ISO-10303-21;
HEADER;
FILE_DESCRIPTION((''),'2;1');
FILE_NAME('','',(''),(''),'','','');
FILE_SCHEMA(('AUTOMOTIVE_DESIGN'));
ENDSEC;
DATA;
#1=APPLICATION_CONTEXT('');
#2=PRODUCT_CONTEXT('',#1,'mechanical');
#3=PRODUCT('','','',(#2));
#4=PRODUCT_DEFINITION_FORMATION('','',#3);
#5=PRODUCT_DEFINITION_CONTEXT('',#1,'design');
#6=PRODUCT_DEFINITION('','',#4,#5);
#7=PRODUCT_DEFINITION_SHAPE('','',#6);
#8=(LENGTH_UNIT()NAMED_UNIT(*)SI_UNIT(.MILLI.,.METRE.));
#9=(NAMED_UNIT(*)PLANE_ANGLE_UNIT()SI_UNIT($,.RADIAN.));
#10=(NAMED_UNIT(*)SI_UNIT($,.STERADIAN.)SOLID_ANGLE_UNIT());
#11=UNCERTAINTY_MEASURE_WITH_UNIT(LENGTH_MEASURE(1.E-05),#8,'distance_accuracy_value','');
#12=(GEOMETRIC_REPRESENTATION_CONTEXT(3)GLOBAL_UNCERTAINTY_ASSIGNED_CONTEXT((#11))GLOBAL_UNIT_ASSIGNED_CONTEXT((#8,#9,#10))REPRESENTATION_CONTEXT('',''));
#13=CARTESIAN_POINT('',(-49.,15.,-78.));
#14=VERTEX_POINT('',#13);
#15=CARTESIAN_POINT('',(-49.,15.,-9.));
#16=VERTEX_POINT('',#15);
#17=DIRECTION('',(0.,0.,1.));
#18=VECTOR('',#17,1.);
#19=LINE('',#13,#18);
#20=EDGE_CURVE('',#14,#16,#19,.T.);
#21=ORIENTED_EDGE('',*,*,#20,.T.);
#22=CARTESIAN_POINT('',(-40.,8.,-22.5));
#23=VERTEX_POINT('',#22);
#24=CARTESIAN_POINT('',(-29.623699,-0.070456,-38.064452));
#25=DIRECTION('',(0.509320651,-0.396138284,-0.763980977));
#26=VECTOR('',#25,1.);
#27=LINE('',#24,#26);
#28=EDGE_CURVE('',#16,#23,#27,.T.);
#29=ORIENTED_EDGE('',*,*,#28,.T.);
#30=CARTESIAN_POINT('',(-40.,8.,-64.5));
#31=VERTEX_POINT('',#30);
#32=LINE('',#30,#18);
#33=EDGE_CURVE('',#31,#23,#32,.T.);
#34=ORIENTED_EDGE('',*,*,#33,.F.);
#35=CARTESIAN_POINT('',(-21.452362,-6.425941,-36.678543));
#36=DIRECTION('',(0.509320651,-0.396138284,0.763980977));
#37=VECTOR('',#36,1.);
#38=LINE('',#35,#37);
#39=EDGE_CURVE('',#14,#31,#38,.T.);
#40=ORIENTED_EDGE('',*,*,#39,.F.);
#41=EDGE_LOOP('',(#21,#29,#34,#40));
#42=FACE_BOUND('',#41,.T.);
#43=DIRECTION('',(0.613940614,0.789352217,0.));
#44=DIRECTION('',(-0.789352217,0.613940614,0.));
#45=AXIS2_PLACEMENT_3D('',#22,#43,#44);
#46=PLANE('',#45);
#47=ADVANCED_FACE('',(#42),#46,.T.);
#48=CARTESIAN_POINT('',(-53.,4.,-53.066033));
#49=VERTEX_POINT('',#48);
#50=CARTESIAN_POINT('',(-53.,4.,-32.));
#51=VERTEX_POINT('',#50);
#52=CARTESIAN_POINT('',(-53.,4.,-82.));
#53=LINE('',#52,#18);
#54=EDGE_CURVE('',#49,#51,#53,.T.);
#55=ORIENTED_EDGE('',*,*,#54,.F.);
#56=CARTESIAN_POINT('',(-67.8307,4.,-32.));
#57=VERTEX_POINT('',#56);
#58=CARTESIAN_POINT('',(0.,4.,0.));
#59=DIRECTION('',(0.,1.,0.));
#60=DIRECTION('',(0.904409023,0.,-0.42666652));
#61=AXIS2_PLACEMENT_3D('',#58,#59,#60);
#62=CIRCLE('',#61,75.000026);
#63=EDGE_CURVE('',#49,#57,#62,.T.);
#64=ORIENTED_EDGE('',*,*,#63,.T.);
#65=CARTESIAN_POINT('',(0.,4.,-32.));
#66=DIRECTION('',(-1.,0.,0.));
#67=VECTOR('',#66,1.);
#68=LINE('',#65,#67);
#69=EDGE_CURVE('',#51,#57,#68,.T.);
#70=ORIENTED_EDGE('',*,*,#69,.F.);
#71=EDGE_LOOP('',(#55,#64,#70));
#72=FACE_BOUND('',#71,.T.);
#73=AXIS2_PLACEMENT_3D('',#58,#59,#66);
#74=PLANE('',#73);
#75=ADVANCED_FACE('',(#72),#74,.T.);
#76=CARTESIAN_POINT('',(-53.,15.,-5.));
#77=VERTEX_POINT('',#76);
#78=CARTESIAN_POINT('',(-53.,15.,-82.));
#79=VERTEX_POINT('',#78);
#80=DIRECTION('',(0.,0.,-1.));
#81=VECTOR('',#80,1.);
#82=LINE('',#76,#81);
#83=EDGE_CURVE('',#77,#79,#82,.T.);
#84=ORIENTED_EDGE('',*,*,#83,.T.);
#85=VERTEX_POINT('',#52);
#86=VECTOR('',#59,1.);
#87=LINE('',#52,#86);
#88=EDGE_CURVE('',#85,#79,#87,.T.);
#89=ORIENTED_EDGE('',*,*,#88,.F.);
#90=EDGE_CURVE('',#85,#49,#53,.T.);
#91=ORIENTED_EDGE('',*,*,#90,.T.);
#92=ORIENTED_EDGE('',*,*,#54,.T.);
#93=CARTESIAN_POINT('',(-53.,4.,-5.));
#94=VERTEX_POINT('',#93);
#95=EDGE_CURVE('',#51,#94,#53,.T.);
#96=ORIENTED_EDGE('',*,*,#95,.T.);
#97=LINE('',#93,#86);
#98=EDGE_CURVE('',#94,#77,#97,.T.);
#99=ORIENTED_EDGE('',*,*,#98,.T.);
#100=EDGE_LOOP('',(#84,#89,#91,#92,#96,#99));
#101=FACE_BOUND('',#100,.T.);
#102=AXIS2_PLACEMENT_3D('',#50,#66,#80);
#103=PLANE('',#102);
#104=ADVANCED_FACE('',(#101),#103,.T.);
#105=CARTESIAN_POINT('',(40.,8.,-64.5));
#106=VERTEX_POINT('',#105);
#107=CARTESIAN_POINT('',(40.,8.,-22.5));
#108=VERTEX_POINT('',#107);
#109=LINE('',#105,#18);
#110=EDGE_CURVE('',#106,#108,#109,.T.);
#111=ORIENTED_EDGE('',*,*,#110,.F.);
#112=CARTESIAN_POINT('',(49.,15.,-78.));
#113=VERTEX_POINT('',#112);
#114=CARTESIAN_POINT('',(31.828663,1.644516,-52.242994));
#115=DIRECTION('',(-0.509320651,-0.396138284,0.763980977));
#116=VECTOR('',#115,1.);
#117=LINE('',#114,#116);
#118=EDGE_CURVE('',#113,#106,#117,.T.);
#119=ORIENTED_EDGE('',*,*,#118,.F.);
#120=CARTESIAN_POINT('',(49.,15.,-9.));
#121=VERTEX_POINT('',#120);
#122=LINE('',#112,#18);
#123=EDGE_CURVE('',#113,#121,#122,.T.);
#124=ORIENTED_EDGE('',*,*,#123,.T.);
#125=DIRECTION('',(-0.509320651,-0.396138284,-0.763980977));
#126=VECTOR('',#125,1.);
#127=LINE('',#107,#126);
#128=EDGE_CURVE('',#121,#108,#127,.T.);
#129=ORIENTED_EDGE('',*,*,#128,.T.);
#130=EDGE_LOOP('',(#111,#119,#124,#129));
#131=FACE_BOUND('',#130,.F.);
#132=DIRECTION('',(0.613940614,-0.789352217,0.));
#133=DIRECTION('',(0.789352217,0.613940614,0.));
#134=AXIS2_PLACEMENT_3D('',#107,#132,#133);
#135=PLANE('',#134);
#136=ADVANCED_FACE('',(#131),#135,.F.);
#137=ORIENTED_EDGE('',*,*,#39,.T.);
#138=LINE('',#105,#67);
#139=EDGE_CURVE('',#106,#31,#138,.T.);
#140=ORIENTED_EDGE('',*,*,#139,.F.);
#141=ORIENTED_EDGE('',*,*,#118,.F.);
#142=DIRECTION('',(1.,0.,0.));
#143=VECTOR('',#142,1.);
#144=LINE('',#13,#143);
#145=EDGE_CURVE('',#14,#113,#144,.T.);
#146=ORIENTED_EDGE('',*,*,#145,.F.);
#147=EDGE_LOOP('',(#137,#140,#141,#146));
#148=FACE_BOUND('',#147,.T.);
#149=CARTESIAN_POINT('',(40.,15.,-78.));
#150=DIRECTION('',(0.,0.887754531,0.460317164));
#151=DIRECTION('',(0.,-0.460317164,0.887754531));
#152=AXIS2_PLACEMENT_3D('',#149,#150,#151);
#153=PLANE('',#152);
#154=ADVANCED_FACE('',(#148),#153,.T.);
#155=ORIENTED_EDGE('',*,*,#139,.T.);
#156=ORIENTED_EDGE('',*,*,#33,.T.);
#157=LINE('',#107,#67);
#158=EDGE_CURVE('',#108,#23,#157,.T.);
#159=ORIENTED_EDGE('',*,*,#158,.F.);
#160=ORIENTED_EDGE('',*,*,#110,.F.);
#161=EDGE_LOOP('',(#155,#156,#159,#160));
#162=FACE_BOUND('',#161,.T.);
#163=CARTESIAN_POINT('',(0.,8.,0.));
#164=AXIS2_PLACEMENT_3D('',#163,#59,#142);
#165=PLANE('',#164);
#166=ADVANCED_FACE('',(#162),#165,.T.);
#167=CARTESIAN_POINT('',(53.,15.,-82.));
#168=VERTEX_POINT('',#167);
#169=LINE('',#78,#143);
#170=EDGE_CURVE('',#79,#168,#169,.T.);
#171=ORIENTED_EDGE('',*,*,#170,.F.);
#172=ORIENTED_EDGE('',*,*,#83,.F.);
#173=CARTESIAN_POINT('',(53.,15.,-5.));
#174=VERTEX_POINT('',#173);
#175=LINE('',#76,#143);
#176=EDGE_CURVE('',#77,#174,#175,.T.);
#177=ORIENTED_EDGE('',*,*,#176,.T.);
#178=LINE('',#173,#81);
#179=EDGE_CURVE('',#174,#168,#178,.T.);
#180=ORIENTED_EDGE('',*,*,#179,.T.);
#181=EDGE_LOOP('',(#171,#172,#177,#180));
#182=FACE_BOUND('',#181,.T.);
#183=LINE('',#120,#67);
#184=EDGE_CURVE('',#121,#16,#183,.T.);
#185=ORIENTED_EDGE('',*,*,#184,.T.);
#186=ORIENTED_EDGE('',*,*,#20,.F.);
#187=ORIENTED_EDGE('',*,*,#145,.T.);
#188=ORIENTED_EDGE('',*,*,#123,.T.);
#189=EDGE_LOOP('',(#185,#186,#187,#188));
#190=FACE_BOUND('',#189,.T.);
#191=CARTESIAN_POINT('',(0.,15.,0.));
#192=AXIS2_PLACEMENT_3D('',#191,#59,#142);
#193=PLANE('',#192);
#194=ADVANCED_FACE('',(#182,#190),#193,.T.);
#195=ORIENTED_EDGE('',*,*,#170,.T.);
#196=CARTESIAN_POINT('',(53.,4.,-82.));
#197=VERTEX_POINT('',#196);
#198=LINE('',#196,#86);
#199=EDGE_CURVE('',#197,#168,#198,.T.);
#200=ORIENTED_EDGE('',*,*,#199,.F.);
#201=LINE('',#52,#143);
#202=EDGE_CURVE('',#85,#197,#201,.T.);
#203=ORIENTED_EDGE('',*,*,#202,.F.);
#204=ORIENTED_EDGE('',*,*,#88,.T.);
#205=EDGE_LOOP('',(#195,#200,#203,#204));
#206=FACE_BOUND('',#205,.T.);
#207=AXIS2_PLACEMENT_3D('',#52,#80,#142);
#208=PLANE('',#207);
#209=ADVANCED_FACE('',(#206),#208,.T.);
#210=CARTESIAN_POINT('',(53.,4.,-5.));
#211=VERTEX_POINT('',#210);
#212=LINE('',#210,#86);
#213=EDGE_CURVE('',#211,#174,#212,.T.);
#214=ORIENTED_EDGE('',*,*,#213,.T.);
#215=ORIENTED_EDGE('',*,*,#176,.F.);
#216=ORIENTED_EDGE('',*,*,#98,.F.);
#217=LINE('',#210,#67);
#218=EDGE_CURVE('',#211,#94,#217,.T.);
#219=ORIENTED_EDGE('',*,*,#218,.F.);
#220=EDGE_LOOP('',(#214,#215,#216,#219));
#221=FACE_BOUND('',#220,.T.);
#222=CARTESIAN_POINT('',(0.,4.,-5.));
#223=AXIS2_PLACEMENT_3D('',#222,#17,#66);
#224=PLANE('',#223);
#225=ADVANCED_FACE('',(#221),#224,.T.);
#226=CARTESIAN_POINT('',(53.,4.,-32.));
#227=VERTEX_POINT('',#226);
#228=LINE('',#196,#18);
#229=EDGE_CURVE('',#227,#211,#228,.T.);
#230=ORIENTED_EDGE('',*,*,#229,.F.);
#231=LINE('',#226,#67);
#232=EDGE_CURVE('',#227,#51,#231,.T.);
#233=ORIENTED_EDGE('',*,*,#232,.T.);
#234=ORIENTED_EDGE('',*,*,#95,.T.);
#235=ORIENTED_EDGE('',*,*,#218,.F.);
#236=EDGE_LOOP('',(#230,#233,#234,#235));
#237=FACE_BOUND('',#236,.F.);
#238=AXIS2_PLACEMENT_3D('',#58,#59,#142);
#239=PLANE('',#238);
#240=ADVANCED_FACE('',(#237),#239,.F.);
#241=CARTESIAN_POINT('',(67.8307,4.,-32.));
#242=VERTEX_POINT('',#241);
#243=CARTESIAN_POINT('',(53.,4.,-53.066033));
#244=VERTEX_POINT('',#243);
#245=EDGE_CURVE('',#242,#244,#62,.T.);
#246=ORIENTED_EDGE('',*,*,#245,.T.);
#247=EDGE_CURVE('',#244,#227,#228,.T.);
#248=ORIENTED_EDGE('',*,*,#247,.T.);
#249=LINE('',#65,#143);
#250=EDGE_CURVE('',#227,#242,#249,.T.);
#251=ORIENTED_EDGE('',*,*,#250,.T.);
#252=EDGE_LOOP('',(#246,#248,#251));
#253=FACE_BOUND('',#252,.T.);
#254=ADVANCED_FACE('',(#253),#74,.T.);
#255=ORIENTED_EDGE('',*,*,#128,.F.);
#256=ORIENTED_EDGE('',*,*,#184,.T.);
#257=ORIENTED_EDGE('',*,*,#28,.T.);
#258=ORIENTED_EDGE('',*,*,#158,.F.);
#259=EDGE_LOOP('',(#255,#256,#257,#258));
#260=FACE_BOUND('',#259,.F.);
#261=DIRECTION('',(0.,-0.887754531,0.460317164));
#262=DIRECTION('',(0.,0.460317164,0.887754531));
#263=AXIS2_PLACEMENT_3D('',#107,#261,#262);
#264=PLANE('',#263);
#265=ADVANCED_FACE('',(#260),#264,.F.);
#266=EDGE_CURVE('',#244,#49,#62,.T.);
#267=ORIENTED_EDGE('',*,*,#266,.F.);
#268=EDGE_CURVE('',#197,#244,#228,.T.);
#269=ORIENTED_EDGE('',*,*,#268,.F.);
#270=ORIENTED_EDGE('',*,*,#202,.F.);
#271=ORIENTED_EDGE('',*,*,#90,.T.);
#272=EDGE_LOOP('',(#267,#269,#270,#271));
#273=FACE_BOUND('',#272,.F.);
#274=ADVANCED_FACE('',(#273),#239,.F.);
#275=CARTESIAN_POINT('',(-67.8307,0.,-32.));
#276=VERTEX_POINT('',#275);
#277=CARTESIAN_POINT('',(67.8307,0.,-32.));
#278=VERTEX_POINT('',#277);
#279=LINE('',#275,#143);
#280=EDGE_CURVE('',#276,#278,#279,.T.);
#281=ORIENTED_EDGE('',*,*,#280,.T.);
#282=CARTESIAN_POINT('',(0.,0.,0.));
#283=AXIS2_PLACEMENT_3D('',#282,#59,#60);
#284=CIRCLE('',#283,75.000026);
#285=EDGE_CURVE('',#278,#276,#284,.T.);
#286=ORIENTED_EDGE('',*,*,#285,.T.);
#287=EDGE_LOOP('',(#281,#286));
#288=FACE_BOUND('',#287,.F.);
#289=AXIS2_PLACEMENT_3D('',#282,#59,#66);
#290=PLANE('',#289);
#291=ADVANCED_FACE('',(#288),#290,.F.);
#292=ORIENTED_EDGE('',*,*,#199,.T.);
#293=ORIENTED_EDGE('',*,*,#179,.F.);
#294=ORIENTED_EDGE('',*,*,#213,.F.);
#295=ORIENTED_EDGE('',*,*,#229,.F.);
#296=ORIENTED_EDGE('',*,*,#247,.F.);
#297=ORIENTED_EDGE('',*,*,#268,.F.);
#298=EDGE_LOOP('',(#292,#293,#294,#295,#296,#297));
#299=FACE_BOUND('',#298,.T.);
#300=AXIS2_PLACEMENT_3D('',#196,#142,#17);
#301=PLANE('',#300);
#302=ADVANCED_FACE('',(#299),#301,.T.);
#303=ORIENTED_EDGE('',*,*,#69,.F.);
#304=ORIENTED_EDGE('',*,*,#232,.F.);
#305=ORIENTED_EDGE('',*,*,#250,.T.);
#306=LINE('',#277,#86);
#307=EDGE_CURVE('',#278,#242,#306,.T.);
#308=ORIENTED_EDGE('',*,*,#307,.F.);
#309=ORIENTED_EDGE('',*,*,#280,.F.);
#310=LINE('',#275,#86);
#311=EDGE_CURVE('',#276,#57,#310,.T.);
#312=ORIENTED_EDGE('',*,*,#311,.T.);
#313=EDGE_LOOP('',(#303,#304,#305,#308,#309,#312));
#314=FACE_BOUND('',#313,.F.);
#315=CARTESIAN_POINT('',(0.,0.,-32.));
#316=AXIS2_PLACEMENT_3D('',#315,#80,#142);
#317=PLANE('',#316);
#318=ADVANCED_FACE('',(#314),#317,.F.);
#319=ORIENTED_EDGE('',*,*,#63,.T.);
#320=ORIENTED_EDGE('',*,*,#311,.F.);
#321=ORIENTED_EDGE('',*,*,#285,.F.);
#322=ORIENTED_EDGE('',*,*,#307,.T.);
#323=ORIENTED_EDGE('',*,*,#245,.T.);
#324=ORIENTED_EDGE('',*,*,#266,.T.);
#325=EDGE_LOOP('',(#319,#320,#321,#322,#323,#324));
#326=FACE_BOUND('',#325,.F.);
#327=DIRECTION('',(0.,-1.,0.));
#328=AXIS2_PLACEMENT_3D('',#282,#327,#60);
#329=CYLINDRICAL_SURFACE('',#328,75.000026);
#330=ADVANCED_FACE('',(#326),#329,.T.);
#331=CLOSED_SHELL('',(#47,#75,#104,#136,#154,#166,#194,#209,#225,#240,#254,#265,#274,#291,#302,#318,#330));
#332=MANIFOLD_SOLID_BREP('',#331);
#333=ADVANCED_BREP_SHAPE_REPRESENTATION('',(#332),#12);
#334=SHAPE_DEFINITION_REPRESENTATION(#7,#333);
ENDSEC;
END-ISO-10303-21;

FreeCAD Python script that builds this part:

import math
import FreeCAD as App
import Part
import Sketcher

V = App.Vector
Q = App.Units.Quantity


def add_polygon(sketch, points):
    """Adds a closed chain of lines whose ends are joined by coincident constraints."""
    first, n = sketch.GeometryCount, len(points)
    for a, b in zip(points, points[1:] + points[:1]):
        sketch.addGeometry(Part.LineSegment(App.Vector(*a, 0), App.Vector(*b, 0)), False)
    for i in range(n):
        sketch.addConstraint(Sketcher.Constraint("Coincident", first + i, 2, first + (i + 1) % n, 1))

doc = App.newDocument("Part")
body = doc.addObject("PartDesign::Body", "Body")

# Sketch on XZ plane
sketch1 = doc.addObject("Sketcher::SketchObject", "Sketch")
body.addObject(sketch1)
sketch1.AttachmentSupport = (doc.XZ_Plane, [""])
sketch1.MapMode = "FlatFace"
sketch1.addGeometry([
    Part.LineSegment(V(-68, -32, 0), V(68, -32, 0)),
    Part.ArcOfCircle(Part.Circle(V(0, 0, 0), V(0, 0, 1), 75), math.radians(-155), math.radians(-25)),
], False)
sketch1.addConstraint([
    Sketcher.Constraint("Coincident", 0, 1, 1, 1),
    Sketcher.Constraint("Coincident", 1, 2, 0, 2),
    Sketcher.Constraint("Horizontal", 0),
    Sketcher.Constraint("Coincident", 1, 3, -1, 1),
    Sketcher.Constraint("Radius", 1, Q("75 mm")),
    Sketcher.Constraint("DistanceY", 0, 1, -1, 1, Q("32 mm")),
])
pad1 = doc.addObject("PartDesign::Pad", "Pad")
body.addObject(pad1)
pad1.Profile = sketch1
pad1.Length = 4
pad1.Reversed = True

# Sketch on XZ plane
sketch2 = doc.addObject("Sketcher::SketchObject", "Sketch001")
body.addObject(sketch2)
sketch2.AttachmentSupport = (doc.XZ_Plane, [""])
sketch2.MapMode = "FlatFace"
sketch2.AttachmentOffset = App.Placement(V(0, 0, -4), App.Rotation())
add_polygon(sketch2, [(-53, -82), (-53, -5), (53, -5), (53, -82)])  # lines 0-3
sketch2.addConstraint([
    Sketcher.Constraint("Vertical", 0),
    Sketcher.Constraint("Horizontal", 1),
    Sketcher.Constraint("Vertical", 2),
    Sketcher.Constraint("Horizontal", 3),
    Sketcher.Constraint("DistanceX", 1, 1, 1, 2, Q("106 mm")),
    Sketcher.Constraint("DistanceY", 0, 1, 0, 2, Q("77 mm")),
    Sketcher.Constraint("DistanceX", 0, 2, -1, 1, Q("53 mm")),
    Sketcher.Constraint("DistanceY", 0, 2, -1, 1, Q("5 mm")),
])
pad2 = doc.addObject("PartDesign::Pad", "Pad001")
body.addObject(pad2)
pad2.Profile = sketch2
pad2.Length = 11
pad2.Reversed = True

# Sketch on XZ plane
sketch3 = doc.addObject("Sketcher::SketchObject", "Sketch002")
body.addObject(sketch3)
sketch3.AttachmentSupport = (doc.XZ_Plane, [""])
sketch3.MapMode = "FlatFace"
sketch3.AttachmentOffset = App.Placement(V(0, 0, -15), App.Rotation())
add_polygon(sketch3, [(40, -22), (40, -64), (-40, -64), (-40, -22)])  # lines 0-3
sketch3.addConstraint([
    Sketcher.Constraint("Vertical", 0),
    Sketcher.Constraint("Horizontal", 1),
    Sketcher.Constraint("Vertical", 2),
    Sketcher.Constraint("Horizontal", 3),
    Sketcher.Constraint("DistanceX", -1, 1, 0, 2, Q("40 mm")),
    Sketcher.Constraint("DistanceX", 1, 2, -1, 1, Q("40 mm")),
    Sketcher.Constraint("DistanceY", 0, 2, 0, 1, Q("42 mm")),
    Sketcher.Constraint("DistanceY", 0, 2, -1, 1, Q("64.5 mm")),
])
pocket1 = doc.addObject("PartDesign::Pocket", "Pocket")
body.addObject(pocket1)
pocket1.Profile = sketch3
pocket1.Length = 7
pocket1.Reversed = True

# Sketch on XY plane
sketch4 = doc.addObject("Sketcher::SketchObject", "Sketch003")
body.addObject(sketch4)
sketch4.AttachmentSupport = (doc.XY_Plane, [""])
sketch4.MapMode = "FlatFace"
sketch4.AttachmentOffset = App.Placement(V(0, 0, -22.5), App.Rotation())
add_polygon(sketch4, [(-49, 15), (-40, 15), (-40, 8)])  # lines 0-2
add_polygon(sketch4, [(49, 15), (40, 8), (40, 15)])  # lines 3-5
sketch4.addConstraint([
    Sketcher.Constraint("Horizontal", 0),
    Sketcher.Constraint("Vertical", 1),
    Sketcher.Constraint("Vertical", 4),
    Sketcher.Constraint("Horizontal", 5),
    Sketcher.Constraint("Symmetric", 1, 2, 3, 2, -2),
    Sketcher.Constraint("Symmetric", 2, 2, 5, 2, -2),
    Sketcher.Constraint("DistanceX", 0, 1, 0, 2, Q("9 mm")),
    Sketcher.Constraint("DistanceY", 1, 2, 1, 1, Q("7 mm")),
    Sketcher.Constraint("DistanceX", 0, 2, -1, 1, Q("40 mm")),
    Sketcher.Constraint("DistanceY", -1, 1, 0, 2, Q("15 mm")),
])
pocket2 = doc.addObject("PartDesign::Pocket", "Pocket001")
body.addObject(pocket2)
pocket2.Profile = sketch4
pocket2.Type = "TwoLengths"
pocket2.Length = 55.5
pocket2.Length2 = 13.5

# Sketch on YZ plane
sketch5 = doc.addObject("Sketcher::SketchObject", "Sketch004")
body.addObject(sketch5)
sketch5.AttachmentSupport = (doc.YZ_Plane, [""])
sketch5.MapMode = "FlatFace"
sketch5.AttachmentOffset = App.Placement(V(0, 0, 40), App.Rotation())
add_polygon(sketch5, [(15, -78), (15, -64), (8, -64)])  # lines 0-2
add_polygon(sketch5, [(15, -9), (8, -22), (15, -22)])  # lines 3-5
sketch5.addConstraint([
    Sketcher.Constraint("Vertical", 0),
    Sketcher.Constraint("Horizontal", 1),
    Sketcher.Constraint("Horizontal", 4),
    Sketcher.Constraint("Vertical", 5),
    Sketcher.Constraint("Vertical", 1, 2, 3, 2),
    Sketcher.Constraint("Vertical", 2, 2, 4, 2),
    Sketcher.Constraint("Equal", 0, 5),
    Sketcher.Constraint("DistanceX", 1, 2, 1, 1, Q("7 mm")),
    Sketcher.Constraint("DistanceY", 0, 1, 0, 2, Q("13.5 mm")),
    Sketcher.Constraint("DistanceX", -1, 1, 0, 2, Q("15 mm")),
    Sketcher.Constraint("DistanceY", 2, 2, -1, 1, Q("78 mm")),
    Sketcher.Constraint("DistanceY", 5, 2, -1, 1, Q("9 mm")),
])
pocket3 = doc.addObject("PartDesign::Pocket", "Pocket002")
body.addObject(pocket3)
pocket3.Profile = sketch5
pocket3.Length = 80

# Sketch on YZ plane
sketch6 = doc.addObject("Sketcher::SketchObject", "Sketch005")
body.addObject(sketch6)
sketch6.AttachmentSupport = (doc.YZ_Plane, [""])
sketch6.MapMode = "FlatFace"
sketch6.AttachmentOffset = App.Placement(V(0, 0, 40), App.Rotation())
add_polygon(sketch6, [(8, -78), (15, -78), (8, -64)])  # lines 0-2
add_polygon(sketch6, [(15, -9), (8, -9), (8, -22)])  # lines 3-5
sketch6.addConstraint([
    Sketcher.Constraint("Horizontal", 0),
    Sketcher.Constraint("Vertical", 2),
    Sketcher.Constraint("Horizontal", 3),
    Sketcher.Constraint("Vertical", 4),
    Sketcher.Constraint("Vertical", 2, 2, 3, 2),
    Sketcher.Constraint("Vertical", 0, 2, 5, 2),
    Sketcher.Constraint("Equal", 2, 4),
    Sketcher.Constraint("DistanceX", 0, 1, 0, 2, Q("7 mm")),
    Sketcher.Constraint("DistanceY", 2, 2, 2, 1, Q("13.5 mm")),
    Sketcher.Constraint("DistanceX", -1, 1, 0, 2, Q("15 mm")),
    Sketcher.Constraint("DistanceY", 0, 2, -1, 1, Q("78 mm")),
    Sketcher.Constraint("DistanceY", 3, 2, -1, 1, Q("9 mm")),
])
pad3 = doc.addObject("PartDesign::Pad", "Pad002")
body.addObject(pad3)
pad3.Profile = sketch6
pad3.Type = "TwoLengths"
pad3.Length = 10
pad3.Length2 = 90

doc.recompute()
